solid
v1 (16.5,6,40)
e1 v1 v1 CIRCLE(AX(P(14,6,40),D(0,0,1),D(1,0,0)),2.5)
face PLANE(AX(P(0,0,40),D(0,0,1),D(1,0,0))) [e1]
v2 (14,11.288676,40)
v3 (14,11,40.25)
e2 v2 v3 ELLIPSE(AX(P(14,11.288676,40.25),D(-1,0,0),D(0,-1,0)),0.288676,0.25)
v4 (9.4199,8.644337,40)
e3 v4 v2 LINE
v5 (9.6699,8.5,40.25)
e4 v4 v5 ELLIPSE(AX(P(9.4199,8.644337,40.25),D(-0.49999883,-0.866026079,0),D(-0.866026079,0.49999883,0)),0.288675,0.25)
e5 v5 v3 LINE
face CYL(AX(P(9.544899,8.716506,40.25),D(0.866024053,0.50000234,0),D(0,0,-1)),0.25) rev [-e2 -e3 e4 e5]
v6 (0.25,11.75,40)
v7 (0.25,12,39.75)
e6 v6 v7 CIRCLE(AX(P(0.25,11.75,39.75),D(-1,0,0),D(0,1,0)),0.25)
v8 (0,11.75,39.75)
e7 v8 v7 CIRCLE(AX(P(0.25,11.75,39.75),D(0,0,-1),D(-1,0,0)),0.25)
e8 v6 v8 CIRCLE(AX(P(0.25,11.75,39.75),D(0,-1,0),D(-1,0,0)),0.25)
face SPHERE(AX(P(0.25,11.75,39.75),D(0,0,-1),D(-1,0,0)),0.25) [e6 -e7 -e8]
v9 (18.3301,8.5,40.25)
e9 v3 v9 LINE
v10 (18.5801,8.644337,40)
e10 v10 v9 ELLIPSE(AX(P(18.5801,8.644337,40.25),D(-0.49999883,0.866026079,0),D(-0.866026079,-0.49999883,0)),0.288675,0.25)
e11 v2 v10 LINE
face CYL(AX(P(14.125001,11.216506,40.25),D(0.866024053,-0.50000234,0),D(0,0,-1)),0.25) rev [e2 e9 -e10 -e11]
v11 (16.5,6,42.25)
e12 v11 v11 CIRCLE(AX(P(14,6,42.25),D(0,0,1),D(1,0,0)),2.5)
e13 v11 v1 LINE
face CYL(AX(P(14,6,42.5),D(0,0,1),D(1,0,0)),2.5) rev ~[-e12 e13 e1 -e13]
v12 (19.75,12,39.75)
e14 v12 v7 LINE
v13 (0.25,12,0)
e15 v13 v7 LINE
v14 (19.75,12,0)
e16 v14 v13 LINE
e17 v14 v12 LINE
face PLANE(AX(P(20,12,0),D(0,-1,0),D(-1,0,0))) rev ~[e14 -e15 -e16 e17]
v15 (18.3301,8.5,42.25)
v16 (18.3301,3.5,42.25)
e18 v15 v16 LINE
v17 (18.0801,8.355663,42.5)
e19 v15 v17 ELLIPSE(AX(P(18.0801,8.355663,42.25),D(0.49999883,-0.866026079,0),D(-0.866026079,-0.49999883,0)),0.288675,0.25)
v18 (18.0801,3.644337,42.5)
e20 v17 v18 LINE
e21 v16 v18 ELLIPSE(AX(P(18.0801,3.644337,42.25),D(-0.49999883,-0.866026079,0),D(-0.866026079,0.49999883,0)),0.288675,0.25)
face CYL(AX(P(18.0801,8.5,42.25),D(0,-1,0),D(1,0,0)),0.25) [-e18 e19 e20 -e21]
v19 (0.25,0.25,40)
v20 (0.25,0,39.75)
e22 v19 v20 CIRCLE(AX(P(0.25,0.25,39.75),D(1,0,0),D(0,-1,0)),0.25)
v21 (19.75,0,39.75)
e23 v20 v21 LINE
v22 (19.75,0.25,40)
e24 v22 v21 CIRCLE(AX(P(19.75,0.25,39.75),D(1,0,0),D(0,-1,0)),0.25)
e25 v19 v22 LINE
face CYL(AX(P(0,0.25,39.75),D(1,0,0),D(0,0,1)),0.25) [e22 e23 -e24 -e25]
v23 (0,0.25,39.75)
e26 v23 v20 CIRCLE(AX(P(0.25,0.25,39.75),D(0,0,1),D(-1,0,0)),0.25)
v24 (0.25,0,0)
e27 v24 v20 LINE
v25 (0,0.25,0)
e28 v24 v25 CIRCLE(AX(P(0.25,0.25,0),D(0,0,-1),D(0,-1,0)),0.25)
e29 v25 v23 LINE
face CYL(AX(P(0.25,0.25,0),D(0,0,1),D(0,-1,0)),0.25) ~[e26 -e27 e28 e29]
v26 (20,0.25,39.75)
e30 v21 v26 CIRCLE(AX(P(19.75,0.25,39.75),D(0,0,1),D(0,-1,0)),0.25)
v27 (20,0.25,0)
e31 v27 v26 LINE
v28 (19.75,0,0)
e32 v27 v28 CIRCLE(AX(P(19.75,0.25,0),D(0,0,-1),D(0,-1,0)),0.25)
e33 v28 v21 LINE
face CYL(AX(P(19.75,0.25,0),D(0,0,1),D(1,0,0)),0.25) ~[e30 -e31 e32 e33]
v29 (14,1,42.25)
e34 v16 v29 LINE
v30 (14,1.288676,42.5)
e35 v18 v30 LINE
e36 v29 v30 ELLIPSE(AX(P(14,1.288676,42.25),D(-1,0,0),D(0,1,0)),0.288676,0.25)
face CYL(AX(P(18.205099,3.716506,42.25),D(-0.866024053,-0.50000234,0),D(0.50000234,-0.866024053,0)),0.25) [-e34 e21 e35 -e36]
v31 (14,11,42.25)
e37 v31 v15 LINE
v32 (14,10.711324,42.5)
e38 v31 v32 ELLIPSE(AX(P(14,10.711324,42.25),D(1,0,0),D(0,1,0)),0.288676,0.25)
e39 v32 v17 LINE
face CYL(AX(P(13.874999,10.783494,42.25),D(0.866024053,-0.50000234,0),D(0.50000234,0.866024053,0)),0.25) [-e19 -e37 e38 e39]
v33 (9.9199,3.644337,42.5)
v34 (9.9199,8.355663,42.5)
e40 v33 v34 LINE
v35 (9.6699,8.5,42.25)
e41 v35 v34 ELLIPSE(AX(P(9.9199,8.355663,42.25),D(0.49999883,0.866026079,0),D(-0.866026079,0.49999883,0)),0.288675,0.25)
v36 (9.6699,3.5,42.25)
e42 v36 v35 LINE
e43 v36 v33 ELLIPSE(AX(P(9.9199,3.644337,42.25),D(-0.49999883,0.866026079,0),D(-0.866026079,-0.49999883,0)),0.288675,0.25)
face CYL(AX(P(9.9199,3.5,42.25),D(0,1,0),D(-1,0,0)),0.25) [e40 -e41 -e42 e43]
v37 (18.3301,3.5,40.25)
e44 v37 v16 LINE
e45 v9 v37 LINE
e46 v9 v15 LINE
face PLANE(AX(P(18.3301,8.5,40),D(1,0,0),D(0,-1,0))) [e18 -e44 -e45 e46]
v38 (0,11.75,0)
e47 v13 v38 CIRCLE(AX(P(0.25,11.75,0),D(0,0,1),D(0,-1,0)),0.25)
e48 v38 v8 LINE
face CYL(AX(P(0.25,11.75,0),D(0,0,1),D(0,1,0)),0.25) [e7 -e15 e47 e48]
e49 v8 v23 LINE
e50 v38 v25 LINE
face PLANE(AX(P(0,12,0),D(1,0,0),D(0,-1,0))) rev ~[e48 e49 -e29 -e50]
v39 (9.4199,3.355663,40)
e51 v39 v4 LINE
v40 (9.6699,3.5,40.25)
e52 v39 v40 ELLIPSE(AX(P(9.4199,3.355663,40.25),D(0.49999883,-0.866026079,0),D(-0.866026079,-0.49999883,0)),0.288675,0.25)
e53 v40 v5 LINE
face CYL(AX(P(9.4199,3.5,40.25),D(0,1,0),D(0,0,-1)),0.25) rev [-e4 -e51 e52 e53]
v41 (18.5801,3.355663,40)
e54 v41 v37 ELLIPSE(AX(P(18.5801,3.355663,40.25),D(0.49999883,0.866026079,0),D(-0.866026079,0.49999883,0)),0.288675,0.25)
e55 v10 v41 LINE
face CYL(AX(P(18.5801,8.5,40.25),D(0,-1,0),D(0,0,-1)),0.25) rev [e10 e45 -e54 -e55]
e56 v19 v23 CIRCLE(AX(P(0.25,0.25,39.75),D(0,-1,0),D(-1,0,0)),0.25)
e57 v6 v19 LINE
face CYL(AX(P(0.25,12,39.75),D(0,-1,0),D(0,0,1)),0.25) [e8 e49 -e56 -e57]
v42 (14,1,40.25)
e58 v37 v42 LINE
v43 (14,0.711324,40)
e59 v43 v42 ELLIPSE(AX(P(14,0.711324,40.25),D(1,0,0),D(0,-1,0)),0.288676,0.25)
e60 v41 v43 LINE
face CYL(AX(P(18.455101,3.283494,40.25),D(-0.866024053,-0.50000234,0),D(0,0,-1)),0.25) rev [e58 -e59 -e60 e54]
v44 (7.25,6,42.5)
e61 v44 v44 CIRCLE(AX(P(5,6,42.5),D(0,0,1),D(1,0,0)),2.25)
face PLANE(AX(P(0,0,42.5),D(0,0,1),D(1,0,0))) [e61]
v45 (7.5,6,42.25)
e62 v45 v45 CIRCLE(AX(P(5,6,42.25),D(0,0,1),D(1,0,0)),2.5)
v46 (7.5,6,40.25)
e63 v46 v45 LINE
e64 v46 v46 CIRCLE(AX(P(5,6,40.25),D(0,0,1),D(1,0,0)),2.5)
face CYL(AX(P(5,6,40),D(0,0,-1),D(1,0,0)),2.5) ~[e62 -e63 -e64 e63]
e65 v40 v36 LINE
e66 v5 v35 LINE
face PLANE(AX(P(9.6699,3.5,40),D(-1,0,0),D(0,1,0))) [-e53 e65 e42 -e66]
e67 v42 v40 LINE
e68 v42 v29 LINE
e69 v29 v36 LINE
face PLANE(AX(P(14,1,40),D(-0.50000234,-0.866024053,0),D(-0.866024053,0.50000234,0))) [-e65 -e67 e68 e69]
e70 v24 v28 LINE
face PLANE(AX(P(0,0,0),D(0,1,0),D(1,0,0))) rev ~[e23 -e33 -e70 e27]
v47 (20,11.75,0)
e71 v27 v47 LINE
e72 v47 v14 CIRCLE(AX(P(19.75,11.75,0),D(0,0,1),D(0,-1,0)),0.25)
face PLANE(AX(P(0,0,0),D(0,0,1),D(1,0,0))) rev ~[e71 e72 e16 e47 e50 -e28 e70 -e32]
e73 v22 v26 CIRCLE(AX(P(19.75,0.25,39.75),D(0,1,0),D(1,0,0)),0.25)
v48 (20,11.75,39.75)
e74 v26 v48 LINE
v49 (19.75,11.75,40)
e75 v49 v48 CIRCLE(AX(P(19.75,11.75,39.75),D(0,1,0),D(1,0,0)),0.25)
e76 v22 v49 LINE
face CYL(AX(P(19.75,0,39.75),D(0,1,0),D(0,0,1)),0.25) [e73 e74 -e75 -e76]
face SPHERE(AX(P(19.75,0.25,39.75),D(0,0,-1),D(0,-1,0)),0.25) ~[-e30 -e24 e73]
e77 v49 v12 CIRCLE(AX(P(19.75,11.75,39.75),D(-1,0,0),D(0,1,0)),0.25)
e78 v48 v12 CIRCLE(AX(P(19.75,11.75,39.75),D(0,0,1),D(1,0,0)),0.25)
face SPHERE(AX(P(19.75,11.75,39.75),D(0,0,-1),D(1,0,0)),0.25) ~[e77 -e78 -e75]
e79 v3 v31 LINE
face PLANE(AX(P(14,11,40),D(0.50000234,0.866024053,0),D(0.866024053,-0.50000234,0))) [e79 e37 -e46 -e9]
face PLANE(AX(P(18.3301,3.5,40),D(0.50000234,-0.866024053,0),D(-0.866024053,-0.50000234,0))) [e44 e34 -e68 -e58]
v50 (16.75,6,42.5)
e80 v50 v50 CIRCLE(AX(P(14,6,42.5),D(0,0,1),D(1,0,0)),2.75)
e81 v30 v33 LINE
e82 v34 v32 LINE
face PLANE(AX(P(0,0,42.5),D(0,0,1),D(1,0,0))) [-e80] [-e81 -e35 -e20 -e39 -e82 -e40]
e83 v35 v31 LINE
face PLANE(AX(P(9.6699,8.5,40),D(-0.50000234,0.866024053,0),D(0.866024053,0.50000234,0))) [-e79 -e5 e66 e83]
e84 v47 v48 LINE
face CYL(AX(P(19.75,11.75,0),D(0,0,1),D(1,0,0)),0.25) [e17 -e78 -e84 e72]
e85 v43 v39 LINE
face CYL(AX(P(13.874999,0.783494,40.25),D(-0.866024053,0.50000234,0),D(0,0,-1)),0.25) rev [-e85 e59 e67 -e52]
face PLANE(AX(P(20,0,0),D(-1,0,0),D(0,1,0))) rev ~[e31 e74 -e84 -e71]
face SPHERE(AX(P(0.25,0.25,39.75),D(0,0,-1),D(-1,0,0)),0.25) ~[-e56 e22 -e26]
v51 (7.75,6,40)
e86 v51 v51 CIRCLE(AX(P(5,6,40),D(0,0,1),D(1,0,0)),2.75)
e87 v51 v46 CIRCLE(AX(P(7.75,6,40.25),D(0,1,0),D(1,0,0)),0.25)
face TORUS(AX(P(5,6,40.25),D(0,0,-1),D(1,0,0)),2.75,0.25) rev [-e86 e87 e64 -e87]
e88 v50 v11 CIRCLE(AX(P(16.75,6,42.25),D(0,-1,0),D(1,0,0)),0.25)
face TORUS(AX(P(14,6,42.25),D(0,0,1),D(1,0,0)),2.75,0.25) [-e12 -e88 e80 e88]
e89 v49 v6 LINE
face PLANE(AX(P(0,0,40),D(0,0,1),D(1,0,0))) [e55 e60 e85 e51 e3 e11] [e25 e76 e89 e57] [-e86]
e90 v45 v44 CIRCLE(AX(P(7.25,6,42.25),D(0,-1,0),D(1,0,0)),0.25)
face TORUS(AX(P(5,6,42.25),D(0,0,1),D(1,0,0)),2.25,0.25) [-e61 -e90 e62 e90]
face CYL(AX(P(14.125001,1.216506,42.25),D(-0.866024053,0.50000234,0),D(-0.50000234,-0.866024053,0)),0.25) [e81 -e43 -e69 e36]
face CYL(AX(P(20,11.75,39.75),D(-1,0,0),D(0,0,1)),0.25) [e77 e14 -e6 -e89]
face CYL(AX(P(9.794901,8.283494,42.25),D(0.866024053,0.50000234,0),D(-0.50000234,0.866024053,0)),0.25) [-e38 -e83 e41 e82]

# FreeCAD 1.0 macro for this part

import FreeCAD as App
import Part
import Sketcher
from FreeCAD import Vector
Q = App.Units.Quantity


def edges_at(feature, points):
    """Names of the edges that pass closest to the given points."""
    edges = feature.Shape.Edges
    near = lambda p: min(range(len(edges)), key=lambda i: edges[i].distToShape(Part.Vertex(*p))[0])
    return sorted({f"Edge{near(p) + 1}" for p in points})

doc = App.newDocument("Part")
body = doc.addObject("PartDesign::Body", "Body")

# Sketch on XY plane
sketch1 = body.newObject("Sketcher::SketchObject", "Sketch")
sketch1.AttachmentSupport = (doc.getObject("XY_Plane"), [""])
sketch1.MapMode = "FlatFace"
sketch1.addGeometry([
    Part.LineSegment(Vector(20, 0, 0), Vector(20, 12, 0)),
    Part.LineSegment(Vector(20, 12, 0), Vector(0, 12, 0)),
    Part.LineSegment(Vector(0, 12, 0), Vector(0, 0, 0)),
    Part.LineSegment(Vector(0, 0, 0), Vector(20, 0, 0)),
], False)
sketch1.addConstraint([
    Sketcher.Constraint("Coincident", 0, 2, 1, 1),
    Sketcher.Constraint("Coincident", 1, 2, 2, 1),
    Sketcher.Constraint("Coincident", 2, 2, 3, 1),
    Sketcher.Constraint("Coincident", 3, 2, 0, 1),
    Sketcher.Constraint("Vertical", 0),
    Sketcher.Constraint("Horizontal", 1),
    Sketcher.Constraint("Vertical", 2),
    Sketcher.Constraint("Horizontal", 3),
    Sketcher.Constraint("Coincident", 2, 2, -1, 1),
    Sketcher.Constraint("DistanceX", 1, 2, 1, 1, Q("20 mm")),
    Sketcher.Constraint("DistanceY", 0, 1, 0, 2, Q("12 mm")),
])
pad1 = body.newObject("PartDesign::Pad", "Pad")
pad1.Profile = sketch1
pad1.Length = 40

# Sketch on XY plane
sketch2 = body.newObject("Sketcher::SketchObject", "Sketch001")
sketch2.AttachmentSupport = (doc.getObject("XY_Plane"), [""])
sketch2.MapMode = "FlatFace"
sketch2.AttachmentOffset = App.Placement(Vector(0, 0, 40), App.Rotation())
sketch2.addGeometry([
    Part.Circle(Vector(5, 6, 0), Vector(0, 0, 1), 2.5),  # 0
    Part.LineSegment(Vector(9.6699, 3.5, 0), Vector(14, 1, 0)),  # 1
    Part.LineSegment(Vector(14, 1, 0), Vector(18.3301, 3.5, 0)),  # 2
    Part.LineSegment(Vector(18.3301, 3.5, 0), Vector(18.3301, 8.5, 0)),  # 3
    Part.LineSegment(Vector(18.3301, 8.5, 0), Vector(14, 11, 0)),  # 4
    Part.LineSegment(Vector(14, 11, 0), Vector(9.6699, 8.5, 0)),  # 5
    Part.LineSegment(Vector(9.6699, 8.5, 0), Vector(9.6699, 3.5, 0)),  # 6
], False)
sketch2.addConstraint([
    Sketcher.Constraint("Coincident", 1, 2, 2, 1),
    Sketcher.Constraint("Coincident", 2, 2, 3, 1),
    Sketcher.Constraint("Coincident", 3, 2, 4, 1),
    Sketcher.Constraint("Coincident", 4, 2, 5, 1),
    Sketcher.Constraint("Coincident", 5, 2, 6, 1),
    Sketcher.Constraint("Coincident", 6, 2, 1, 1),
    Sketcher.Constraint("Vertical", 3),
    Sketcher.Constraint("Vertical", 6),
    Sketcher.Constraint("Parallel", 1, 4),
    Sketcher.Constraint("Parallel", 2, 5),
    Sketcher.Constraint("Horizontal", 3, 2, 5, 2),
    Sketcher.Constraint("Horizontal", 2, 2, 6, 2),
    Sketcher.Constraint("Vertical", 1, 2, 4, 2),
    Sketcher.Constraint("Diameter", 0, Q("5 mm")),
    Sketcher.Constraint("DistanceY", 3, 1, 3, 2, Q("5 mm")),
    Sketcher.Constraint("Angle", 1, Q("-30.0002 deg")),
    Sketcher.Constraint("Distance", 1, Q("5 mm")),
    Sketcher.Constraint("DistanceX", -1, 1, 0, 3, Q("5 mm")),
    Sketcher.Constraint("DistanceY", -1, 1, 0, 3, Q("6 mm")),
    Sketcher.Constraint("DistanceX", -1, 1, 1, 2, Q("14 mm")),
    Sketcher.Constraint("DistanceY", -1, 1, 1, 2, Q("1 mm")),
])
pad2 = body.newObject("PartDesign::Pad", "Pad001")
pad2.Profile = sketch2
pad2.Length = 2.5

# Sketch on XY plane
sketch3 = body.newObject("Sketcher::SketchObject", "Sketch002")
sketch3.AttachmentSupport = (doc.getObject("XY_Plane"), [""])
sketch3.MapMode = "FlatFace"
sketch3.AttachmentOffset = App.Placement(Vector(0, 0, 42.5), App.Rotation())
sketch3.addGeometry(Part.Circle(Vector(14, 6, 0), Vector(0, 0, 1), 2.5), False)
sketch3.addConstraint([
    Sketcher.Constraint("Diameter", 0, Q("5 mm")),
    Sketcher.Constraint("DistanceX", -1, 1, 0, 3, Q("14 mm")),
    Sketcher.Constraint("DistanceY", -1, 1, 0, 3, Q("6 mm")),
])
pocket1 = body.newObject("PartDesign::Pocket", "Pocket")
pocket1.Profile = sketch3
pocket1.Length = 2.5
doc.recompute()

fillet = body.newObject("PartDesign::Fillet", "Fillet")
fillet.Base = (pocket1, edges_at(pocket1, [(2.5, 6, 42.5)]))
fillet.Radius = 0.25
doc.recompute()

fillet2 = body.newObject("PartDesign::Fillet", "Fillet001")
fillet2.Base = (fillet, edges_at(fillet, [
    (11.835, 2.25, 42.5),
    (16.165, 2.25, 42.5),
    (18.33, 6, 42.5),
    (9.67, 6, 42.5),
    (11.835, 9.75, 42.5),
    (16.165, 9.75, 42.5),
    (11.5, 6, 42.5),
    (16.165, 2.25, 40),
    (11.835, 2.25, 40),
    (18.33, 6, 40),
    (16.165, 9.75, 40),
    (9.67, 6, 40),
    (11.835, 9.75, 40),
]))
fillet2.Radius = 0.25
doc.recompute()

fillet3 = body.newObject("PartDesign::Fillet", "Fillet002")
fillet3.Base = (fillet2, edges_at(fillet2, [(2.5, 6, 40)]))
fillet3.Radius = 0.25
doc.recompute()

fillet4 = body.newObject("PartDesign::Fillet", "Fillet003")
fillet4.Base = (fillet3, edges_at(fillet3, [
    (20, 0, 20),
    (20, 12, 20),
    (0, 12, 20),
    (0, 0, 20),
    (0, 6, 40),
    (10, 0, 40),
    (20, 6, 40),
    (10, 12, 40),
]))
fillet4.Radius = 0.25

doc.recompute()
